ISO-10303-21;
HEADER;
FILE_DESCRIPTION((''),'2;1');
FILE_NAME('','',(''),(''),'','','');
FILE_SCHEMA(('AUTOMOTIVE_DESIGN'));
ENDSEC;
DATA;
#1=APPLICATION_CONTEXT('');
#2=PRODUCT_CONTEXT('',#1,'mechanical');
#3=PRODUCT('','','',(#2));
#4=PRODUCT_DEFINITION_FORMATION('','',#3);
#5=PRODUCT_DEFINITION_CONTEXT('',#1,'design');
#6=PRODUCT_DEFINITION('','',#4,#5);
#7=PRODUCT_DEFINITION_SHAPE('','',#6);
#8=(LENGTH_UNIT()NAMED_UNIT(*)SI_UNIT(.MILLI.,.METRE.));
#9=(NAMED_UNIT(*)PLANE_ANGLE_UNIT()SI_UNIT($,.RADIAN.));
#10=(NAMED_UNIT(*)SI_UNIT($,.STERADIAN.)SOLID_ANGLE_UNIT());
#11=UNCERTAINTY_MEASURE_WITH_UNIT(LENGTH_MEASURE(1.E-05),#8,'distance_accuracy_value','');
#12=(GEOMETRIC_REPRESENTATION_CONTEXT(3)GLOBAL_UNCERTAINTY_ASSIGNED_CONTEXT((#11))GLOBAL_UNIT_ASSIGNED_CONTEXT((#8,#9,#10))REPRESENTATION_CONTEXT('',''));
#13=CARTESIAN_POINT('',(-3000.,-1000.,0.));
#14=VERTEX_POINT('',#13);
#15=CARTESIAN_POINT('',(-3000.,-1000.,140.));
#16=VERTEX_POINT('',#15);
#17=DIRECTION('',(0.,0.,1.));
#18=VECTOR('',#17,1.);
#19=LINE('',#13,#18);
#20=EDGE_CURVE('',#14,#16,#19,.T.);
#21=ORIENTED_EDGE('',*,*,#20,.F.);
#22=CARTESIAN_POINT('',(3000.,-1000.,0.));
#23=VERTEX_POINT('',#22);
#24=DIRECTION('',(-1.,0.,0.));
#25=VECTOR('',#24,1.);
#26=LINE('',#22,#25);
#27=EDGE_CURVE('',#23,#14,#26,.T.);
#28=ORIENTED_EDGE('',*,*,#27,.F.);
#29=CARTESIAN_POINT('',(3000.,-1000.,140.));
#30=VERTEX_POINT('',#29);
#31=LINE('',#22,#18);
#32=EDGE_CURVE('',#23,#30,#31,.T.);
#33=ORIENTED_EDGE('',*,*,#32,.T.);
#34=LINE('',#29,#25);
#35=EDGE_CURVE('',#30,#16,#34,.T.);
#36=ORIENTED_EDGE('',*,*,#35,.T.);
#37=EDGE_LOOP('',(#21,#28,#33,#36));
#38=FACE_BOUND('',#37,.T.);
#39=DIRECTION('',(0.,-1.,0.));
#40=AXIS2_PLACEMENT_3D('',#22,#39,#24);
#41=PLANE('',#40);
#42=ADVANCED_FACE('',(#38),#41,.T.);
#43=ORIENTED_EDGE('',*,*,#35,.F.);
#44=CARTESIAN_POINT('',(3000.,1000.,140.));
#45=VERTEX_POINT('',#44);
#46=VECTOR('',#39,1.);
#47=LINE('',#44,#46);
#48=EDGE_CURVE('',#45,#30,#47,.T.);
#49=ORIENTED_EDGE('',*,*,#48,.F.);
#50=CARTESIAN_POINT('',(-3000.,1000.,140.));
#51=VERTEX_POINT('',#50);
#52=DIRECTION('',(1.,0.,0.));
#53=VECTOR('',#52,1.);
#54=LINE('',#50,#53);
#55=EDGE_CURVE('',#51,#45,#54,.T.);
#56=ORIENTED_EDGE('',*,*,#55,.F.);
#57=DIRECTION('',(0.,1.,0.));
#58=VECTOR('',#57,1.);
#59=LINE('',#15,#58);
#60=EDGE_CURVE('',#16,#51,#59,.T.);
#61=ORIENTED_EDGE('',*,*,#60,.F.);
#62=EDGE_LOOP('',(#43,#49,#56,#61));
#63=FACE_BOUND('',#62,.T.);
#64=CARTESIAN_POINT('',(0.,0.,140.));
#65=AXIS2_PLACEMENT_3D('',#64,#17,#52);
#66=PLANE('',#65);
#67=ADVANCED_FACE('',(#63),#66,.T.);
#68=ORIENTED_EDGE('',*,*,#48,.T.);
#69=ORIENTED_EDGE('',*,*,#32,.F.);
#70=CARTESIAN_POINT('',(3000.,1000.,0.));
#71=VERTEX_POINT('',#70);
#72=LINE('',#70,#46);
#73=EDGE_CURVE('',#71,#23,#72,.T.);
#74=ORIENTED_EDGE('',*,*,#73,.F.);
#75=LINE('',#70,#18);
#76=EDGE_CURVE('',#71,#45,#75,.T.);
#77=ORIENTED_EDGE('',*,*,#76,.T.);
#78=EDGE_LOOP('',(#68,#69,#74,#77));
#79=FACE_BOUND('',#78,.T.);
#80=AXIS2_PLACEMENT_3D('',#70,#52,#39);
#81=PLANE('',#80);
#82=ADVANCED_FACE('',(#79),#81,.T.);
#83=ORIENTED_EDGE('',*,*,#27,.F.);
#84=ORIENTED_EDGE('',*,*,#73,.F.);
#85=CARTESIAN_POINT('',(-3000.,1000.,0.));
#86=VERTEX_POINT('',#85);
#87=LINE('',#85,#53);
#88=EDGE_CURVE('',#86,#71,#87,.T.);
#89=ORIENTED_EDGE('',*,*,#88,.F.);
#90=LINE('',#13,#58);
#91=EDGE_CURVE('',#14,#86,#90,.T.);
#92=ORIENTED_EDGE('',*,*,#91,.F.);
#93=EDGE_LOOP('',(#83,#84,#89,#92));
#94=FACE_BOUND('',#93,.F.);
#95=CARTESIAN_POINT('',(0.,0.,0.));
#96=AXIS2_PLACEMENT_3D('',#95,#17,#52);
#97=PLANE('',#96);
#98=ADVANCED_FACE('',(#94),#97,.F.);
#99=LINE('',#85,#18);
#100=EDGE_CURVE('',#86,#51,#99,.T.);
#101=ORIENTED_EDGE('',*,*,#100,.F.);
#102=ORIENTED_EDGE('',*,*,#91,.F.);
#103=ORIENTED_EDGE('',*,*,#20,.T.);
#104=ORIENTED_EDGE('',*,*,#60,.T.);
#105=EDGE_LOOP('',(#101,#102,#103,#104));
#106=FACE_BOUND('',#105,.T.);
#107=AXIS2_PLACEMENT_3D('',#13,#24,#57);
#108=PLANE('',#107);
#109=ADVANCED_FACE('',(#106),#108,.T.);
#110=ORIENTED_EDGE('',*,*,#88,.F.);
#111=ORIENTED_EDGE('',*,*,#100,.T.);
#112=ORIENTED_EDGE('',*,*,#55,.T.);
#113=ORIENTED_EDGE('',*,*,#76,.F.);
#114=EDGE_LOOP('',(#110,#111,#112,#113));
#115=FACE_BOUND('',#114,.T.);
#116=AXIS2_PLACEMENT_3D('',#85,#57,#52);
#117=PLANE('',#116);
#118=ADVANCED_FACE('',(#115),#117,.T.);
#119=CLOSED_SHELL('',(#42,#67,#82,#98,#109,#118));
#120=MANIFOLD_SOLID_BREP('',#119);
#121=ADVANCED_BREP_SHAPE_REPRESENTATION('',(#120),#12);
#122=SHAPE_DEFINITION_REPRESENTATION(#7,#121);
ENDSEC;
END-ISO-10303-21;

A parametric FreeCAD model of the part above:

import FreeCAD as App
import Part
import Sketcher

V = App.Vector


def add_polygon(sketch, points):
    """Adds a closed chain of lines whose ends are joined by coincident constraints."""
    first, n = sketch.GeometryCount, len(points)
    for a, b in zip(points, points[1:] + points[:1]):
        sketch.addGeometry(Part.LineSegment(App.Vector(*a, 0), App.Vector(*b, 0)), False)
    for i in range(n):
        sketch.addConstraint(Sketcher.Constraint("Coincident", first + i, 2, first + (i + 1) % n, 1))

doc = App.newDocument("Part")
body = doc.addObject("PartDesign::Body", "Body")

# Sketch on XY plane
sketch1 = doc.addObject("Sketcher::SketchObject", "Sketch")
body.addObject(sketch1)
sketch1.AttachmentSupport = (doc.XY_Plane, [""])
sketch1.MapMode = "FlatFace"
add_polygon(sketch1, [(3000, 1000), (-3000, 1000), (-3000, -1000), (3000, -1000)])  # lines 0-3
sketch1.addConstraint(Sketcher.Constraint("Horizontal", 0))
sketch1.addConstraint(Sketcher.Constraint("Vertical", 1))
sketch1.addConstraint(Sketcher.Constraint("Horizontal", 2))
sketch1.addConstraint(Sketcher.Constraint("Vertical", 3))
sketch1.addConstraint(Sketcher.Constraint("Symmetric", 0, 2, 2, 2, -1, 1))
sketch1.addConstraint(Sketcher.Constraint("DistanceX", 0, 2, 0, 1, 6000.0))
sketch1.addConstraint(Sketcher.Constraint("DistanceY", 1, 2, 1, 1, 2000.0))
pad1 = doc.addObject("PartDesign::Pad", "Pad")
body.addObject(pad1)
pad1.Profile = sketch1
pad1.Length = 140

doc.recompute()
